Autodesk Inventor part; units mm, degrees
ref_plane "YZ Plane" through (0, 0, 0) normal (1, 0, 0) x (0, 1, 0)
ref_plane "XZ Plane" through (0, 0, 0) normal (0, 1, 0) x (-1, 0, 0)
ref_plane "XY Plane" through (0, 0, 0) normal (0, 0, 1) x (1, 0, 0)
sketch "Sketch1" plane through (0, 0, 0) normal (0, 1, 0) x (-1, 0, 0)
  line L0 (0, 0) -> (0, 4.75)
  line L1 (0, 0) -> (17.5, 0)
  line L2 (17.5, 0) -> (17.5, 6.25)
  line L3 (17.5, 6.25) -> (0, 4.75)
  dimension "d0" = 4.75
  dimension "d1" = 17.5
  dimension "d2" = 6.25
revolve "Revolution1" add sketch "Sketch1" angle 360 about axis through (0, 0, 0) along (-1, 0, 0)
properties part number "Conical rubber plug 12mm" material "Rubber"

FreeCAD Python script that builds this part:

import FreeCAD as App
import Part
import Sketcher

V = App.Vector
Q = App.Units.Quantity

doc = App.newDocument("Part")
params = doc.addObject("Spreadsheet::Sheet", "Params")
for row, (alias, value) in enumerate([
    ("sketch1_width", "17.5 mm"),
    ("sketch1_height", "4.75 mm"),
    ("sketch1_height2", "6.25 mm"),
    ("revolution_angle", "360 deg"),
], start=1):
    params.set(f"A{row}", alias)
    params.set(f"B{row}", "=" + value)
    params.setAlias(f"B{row}", alias)

body = doc.addObject("PartDesign::Body", "Body")

sketch1 = body.newObject("Sketcher::SketchObject", "Sketch")
sketch1.AttachmentSupport = (doc.getObject("XZ_Plane"), [""])
sketch1.MapMode = "FlatFace"
sketch1.addGeometry([
    Part.LineSegment(V(0, 4.8, 0), V(0, 0, 0)),
    Part.LineSegment(V(0, 0, 0), V(-17.5, 0, 0)),
    Part.LineSegment(V(-17.5, 0, 0), V(-17.5, 6.2, 0)),
    Part.LineSegment(V(-17.5, 6.2, 0), V(0, 4.8, 0)),
], False)
sketch1.addConstraint([
    Sketcher.Constraint("Coincident", 0, 2, 1, 1),
    Sketcher.Constraint("Coincident", 1, 2, 2, 1),
    Sketcher.Constraint("Coincident", 2, 2, 3, 1),
    Sketcher.Constraint("Coincident", 3, 2, 0, 1),
    Sketcher.Constraint("Vertical", 0),
    Sketcher.Constraint("Horizontal", 1),
    Sketcher.Constraint("Vertical", 2),
    Sketcher.Constraint("Coincident", 0, 2, -1, 1),
    Sketcher.Constraint("DistanceX", 1, 2, 1, 1, Q("17.5 mm")),
    Sketcher.Constraint("DistanceY", 0, 2, 0, 1, Q("4.75 mm")),
    Sketcher.Constraint("DistanceY", 2, 1, 2, 2, Q("6.25 mm")),
])
sketch1.setExpression("Constraints[8]", "Params.sketch1_width")
sketch1.setExpression("Constraints[9]", "Params.sketch1_height")
sketch1.setExpression("Constraints[10]", "Params.sketch1_height2")
revolution = body.newObject("PartDesign::Revolution", "Revolution")
revolution.Profile = sketch1
revolution.ReferenceAxis = (sketch1, ["H_Axis"])
revolution.setExpression("Angle", "Params.revolution_angle")

doc.recompute()
